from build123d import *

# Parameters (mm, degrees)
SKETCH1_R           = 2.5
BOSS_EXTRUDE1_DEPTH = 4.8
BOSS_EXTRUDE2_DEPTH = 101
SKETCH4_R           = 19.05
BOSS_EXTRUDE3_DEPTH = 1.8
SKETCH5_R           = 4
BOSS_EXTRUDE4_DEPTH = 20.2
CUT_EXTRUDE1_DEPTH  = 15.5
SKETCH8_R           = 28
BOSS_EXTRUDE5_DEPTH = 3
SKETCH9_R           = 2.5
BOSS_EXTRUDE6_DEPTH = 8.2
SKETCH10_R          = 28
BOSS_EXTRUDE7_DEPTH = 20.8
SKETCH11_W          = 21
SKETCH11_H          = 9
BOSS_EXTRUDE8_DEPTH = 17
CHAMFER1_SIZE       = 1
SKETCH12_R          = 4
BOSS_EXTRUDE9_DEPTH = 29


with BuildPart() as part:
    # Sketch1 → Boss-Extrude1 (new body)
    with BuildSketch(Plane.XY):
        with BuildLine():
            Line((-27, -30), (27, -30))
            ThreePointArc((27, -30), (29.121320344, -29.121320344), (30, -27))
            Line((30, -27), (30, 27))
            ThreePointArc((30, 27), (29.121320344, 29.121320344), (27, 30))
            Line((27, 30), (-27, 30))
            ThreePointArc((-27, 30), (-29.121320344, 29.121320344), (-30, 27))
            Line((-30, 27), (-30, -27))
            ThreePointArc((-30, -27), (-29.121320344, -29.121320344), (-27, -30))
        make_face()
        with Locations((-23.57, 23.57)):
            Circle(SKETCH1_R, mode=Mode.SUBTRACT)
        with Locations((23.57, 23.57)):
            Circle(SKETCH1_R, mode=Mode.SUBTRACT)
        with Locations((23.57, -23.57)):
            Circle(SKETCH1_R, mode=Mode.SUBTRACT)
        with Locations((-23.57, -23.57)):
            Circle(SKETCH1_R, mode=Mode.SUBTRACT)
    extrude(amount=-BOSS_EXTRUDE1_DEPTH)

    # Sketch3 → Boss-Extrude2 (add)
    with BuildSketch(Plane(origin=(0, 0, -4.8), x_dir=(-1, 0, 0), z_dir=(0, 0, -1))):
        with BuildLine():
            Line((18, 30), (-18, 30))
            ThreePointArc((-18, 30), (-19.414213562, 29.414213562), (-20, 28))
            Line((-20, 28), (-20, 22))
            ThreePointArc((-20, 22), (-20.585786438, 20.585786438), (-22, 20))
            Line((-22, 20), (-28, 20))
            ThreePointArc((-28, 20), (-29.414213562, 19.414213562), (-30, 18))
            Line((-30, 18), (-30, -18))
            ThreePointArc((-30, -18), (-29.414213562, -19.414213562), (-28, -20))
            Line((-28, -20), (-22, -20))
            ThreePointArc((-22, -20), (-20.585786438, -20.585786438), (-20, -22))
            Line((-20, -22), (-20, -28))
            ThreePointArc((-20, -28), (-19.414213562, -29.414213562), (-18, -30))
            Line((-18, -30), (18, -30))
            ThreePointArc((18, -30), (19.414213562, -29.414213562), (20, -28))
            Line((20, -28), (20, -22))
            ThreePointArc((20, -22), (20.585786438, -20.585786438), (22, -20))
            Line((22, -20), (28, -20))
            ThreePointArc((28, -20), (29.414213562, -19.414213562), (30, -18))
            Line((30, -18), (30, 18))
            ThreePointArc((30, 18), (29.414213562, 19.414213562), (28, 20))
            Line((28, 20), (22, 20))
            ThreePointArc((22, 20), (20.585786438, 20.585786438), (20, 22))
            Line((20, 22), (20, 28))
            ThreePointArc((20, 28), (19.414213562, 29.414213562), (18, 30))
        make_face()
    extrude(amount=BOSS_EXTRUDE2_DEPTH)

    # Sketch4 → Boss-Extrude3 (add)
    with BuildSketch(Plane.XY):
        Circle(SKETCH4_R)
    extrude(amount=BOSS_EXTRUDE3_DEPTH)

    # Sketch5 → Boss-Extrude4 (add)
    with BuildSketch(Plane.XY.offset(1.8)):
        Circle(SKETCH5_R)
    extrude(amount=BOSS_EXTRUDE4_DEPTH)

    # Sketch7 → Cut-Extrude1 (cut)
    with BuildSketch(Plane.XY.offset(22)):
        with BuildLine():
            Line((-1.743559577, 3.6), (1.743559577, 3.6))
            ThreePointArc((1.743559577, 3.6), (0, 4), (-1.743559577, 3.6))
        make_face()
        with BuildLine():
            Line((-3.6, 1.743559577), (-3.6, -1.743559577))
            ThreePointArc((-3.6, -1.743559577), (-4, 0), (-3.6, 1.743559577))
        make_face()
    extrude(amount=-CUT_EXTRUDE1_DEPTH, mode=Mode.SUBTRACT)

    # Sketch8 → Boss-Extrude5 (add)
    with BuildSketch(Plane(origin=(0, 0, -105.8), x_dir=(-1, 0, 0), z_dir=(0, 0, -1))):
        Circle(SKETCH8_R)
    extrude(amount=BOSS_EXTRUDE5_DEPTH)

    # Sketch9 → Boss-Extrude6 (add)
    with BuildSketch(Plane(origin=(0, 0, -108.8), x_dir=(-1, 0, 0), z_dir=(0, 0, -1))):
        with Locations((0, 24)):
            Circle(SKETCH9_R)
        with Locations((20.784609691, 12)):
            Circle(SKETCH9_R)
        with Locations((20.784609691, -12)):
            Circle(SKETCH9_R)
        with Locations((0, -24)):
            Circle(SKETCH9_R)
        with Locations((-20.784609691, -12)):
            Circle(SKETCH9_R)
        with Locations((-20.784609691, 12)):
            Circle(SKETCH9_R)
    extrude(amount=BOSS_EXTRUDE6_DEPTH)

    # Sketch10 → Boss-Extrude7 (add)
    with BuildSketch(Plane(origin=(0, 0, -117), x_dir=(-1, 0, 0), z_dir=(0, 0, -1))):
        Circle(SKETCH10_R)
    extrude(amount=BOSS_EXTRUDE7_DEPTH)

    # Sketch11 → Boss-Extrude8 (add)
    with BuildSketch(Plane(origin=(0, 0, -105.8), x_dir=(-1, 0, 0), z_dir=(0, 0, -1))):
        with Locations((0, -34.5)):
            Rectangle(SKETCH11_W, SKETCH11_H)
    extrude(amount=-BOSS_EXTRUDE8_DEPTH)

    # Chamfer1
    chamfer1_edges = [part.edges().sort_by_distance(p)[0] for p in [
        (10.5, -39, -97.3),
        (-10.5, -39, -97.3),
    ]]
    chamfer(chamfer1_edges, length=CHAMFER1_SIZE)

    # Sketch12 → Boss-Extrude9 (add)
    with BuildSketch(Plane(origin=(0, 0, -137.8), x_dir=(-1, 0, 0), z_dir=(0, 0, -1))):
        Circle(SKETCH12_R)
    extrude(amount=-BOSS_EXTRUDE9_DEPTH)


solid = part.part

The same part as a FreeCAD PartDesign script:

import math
import FreeCAD as App
import Part
import Sketcher


def edges_at(feature, points):
    """Names of the edges that pass closest to the given points."""
    edges = feature.Shape.Edges
    near = lambda p: min(range(len(edges)), key=lambda i: edges[i].distToShape(Part.Vertex(*p))[0])
    return sorted({f"Edge{near(p) + 1}" for p in points})

doc = App.newDocument("Part")
params = doc.addObject("Spreadsheet::Sheet", "Params")
for row, (alias, value) in enumerate([
    ("sketch1_diameter", "5 mm"),
    ("sketch1_radius", "3 mm"),
    ("sketch1_width", "54 mm"),
    ("pad1_length", "4.8 mm"),
    ("sketch2_radius", "2 mm"),
    ("sketch2_width", "36 mm"),
    ("sketch2_width2", "6 mm"),
    ("pad2_length", "101 mm"),
    ("sketch3_diameter", "38.1 mm"),
    ("pad3_length", "1.8 mm"),
    ("sketch4_diameter", "8 mm"),
    ("pad4_length", "20.2 mm"),
    ("sketch5_radius", "4 mm"),
    ("pocket1_length", "15.5 mm"),
    ("sketch6_diameter", "56 mm"),
    ("pad5_length", "3 mm"),
    ("sketch7_diameter", "5 mm"),
    ("pad6_length", "8.2 mm"),
    ("sketch8_diameter", "56 mm"),
    ("pad7_length", "20.8 mm"),
    ("sketch9_width", "21 mm"),
    ("sketch9_height", "9 mm"),
    ("pad8_length", "17 mm"),
    ("chamfer_size", "1 mm"),
    ("sketch10_diameter", "8 mm"),
    ("pad9_length", "29 mm"),
], start=1):
    params.set(f"A{row}", alias)
    params.set(f"B{row}", "=" + value)
    params.setAlias(f"B{row}", alias)

body = doc.addObject("PartDesign::Body", "Body")

# Sketch on XY plane
sketch1 = body.newObject("Sketcher::SketchObject", "Sketch")
sketch1.AttachmentSupport = (doc.getObject("XY_Plane"), [""])
sketch1.MapMode = "FlatFace"
sketch1.addGeometry([
    Part.LineSegment(App.Vector(-27, -30, 0), App.Vector(27, -30, 0)),  # 0
    Part.ArcOfCircle(Part.Circle(App.Vector(27, -27, 0), App.Vector(0, 0, 1), 3), math.radians(-90), math.radians(0)),  # 1
    Part.LineSegment(App.Vector(30, -27, 0), App.Vector(30, 27, 0)),  # 2
    Part.ArcOfCircle(Part.Circle(App.Vector(27, 27, 0), App.Vector(0, 0, 1), 3), math.radians(0), math.radians(90)),  # 3
    Part.LineSegment(App.Vector(27, 30, 0), App.Vector(-27, 30, 0)),  # 4
    Part.ArcOfCircle(Part.Circle(App.Vector(-27, 27, 0), App.Vector(0, 0, 1), 3), math.radians(90), math.radians(180)),  # 5
    Part.LineSegment(App.Vector(-30, 27, 0), App.Vector(-30, -27, 0)),  # 6
    Part.ArcOfCircle(Part.Circle(App.Vector(-27, -27, 0), App.Vector(0, 0, 1), 3), math.radians(180), math.radians(270)),  # 7
    Part.Circle(App.Vector(-23.6, -23.6, 0), App.Vector(0, 0, 1), 2.5),  # 8
    Part.Circle(App.Vector(23.6, -23.6, 0), App.Vector(0, 0, 1), 2.5),  # 9
    Part.Circle(App.Vector(-23.6, 23.6, 0), App.Vector(0, 0, 1), 2.5),  # 10
    Part.Circle(App.Vector(23.6, 23.6, 0), App.Vector(0, 0, 1), 2.5),  # 11
], False)
sketch1.addConstraint([
    Sketcher.Constraint("Tangent", 0, 2, 1, 1),
    Sketcher.Constraint("Tangent", 1, 2, 2, 1),
    Sketcher.Constraint("Tangent", 2, 2, 3, 1),
    Sketcher.Constraint("Tangent", 3, 2, 4, 1),
    Sketcher.Constraint("Tangent", 4, 2, 5, 1),
    Sketcher.Constraint("Tangent", 5, 2, 6, 1),
    Sketcher.Constraint("Tangent", 6, 2, 7, 1),
    Sketcher.Constraint("Tangent", 7, 2, 0, 1),
    Sketcher.Constraint("Horizontal", 0),
    Sketcher.Constraint("Vertical", 2),
    Sketcher.Constraint("Horizontal", 4),
    Sketcher.Constraint("Vertical", 6),
    Sketcher.Constraint("Equal", 1, 3),
    Sketcher.Constraint("Equal", 3, 5),
    Sketcher.Constraint("Equal", 5, 7),
    Sketcher.Constraint("Equal", 8, 9),
    Sketcher.Constraint("Equal", 9, 10),
    Sketcher.Constraint("Equal", 10, 11),
    Sketcher.Constraint("Symmetric", 1, 3, 5, 3, -1, 1),
    Sketcher.Constraint("Symmetric", 9, 3, 10, 3, -1, 1),
    Sketcher.Constraint("Symmetric", 8, 3, 11, 3, -1, 1),
    Sketcher.Constraint("Symmetric", 8, 3, 9, 3, -2),
    Sketcher.Constraint("Equal", 4, 2),
    Sketcher.Constraint("Diameter", 8, 5.0),
    Sketcher.Constraint("Radius", 1, 3.0),
    Sketcher.Constraint("DistanceX", 0, 1, 0, 2, 54.0),
    Sketcher.Constraint("DistanceX", 8, 3, -1, 1, 23.57),
    Sketcher.Constraint("DistanceY", 8, 3, -1, 1, 23.57),
])
sketch1.setExpression("Constraints[23]", "Params.sketch1_diameter")
sketch1.setExpression("Constraints[24]", "Params.sketch1_radius")
sketch1.setExpression("Constraints[25]", "Params.sketch1_width")
pad1 = body.newObject("PartDesign::Pad", "Pad")
pad1.Profile = sketch1
pad1.setExpression("Length", "Params.pad1_length")
pad1.Reversed = True

# Sketch on XY plane
sketch2 = body.newObject("Sketcher::SketchObject", "Sketch001")
sketch2.AttachmentSupport = (doc.getObject("XY_Plane"), [""])
sketch2.MapMode = "FlatFace"
sketch2.AttachmentOffset = App.Placement(App.Vector(0, 0, -4.8), App.Rotation())
sketch2.addGeometry([
    Part.LineSegment(App.Vector(-18, 30, 0), App.Vector(18, 30, 0)),  # 0
    Part.ArcOfCircle(Part.Circle(App.Vector(18, 28, 0), App.Vector(0, 0, 1), 2), math.radians(0), math.radians(90)),  # 1
    Part.LineSegment(App.Vector(20, 28, 0), App.Vector(20, 22, 0)),  # 2
    Part.ArcOfCircle(Part.Circle(App.Vector(22, 22, 0), App.Vector(0, 0, 1), 2), math.radians(-180), math.radians(-90)),  # 3
    Part.LineSegment(App.Vector(22, 20, 0), App.Vector(28, 20, 0)),  # 4
    Part.ArcOfCircle(Part.Circle(App.Vector(28, 18, 0), App.Vector(0, 0, 1), 2), math.radians(0), math.radians(90)),  # 5
    Part.LineSegment(App.Vector(30, 18, 0), App.Vector(30, -18, 0)),  # 6
    Part.ArcOfCircle(Part.Circle(App.Vector(28, -18, 0), App.Vector(0, 0, 1), 2), math.radians(-90), math.radians(0)),  # 7
    Part.LineSegment(App.Vector(28, -20, 0), App.Vector(22, -20, 0)),  # 8
    Part.ArcOfCircle(Part.Circle(App.Vector(22, -22, 0), App.Vector(0, 0, 1), 2), math.radians(90), math.radians(180)),  # 9
    Part.LineSegment(App.Vector(20, -22, 0), App.Vector(20, -28, 0)),  # 10
    Part.ArcOfCircle(Part.Circle(App.Vector(18, -28, 0), App.Vector(0, 0, 1), 2), math.radians(-90), math.radians(0)),  # 11
    Part.LineSegment(App.Vector(18, -30, 0), App.Vector(-18, -30, 0)),  # 12
    Part.ArcOfCircle(Part.Circle(App.Vector(-18, -28, 0), App.Vector(0, 0, 1), 2), math.radians(-180), math.radians(-90)),  # 13
    Part.LineSegment(App.Vector(-20, -28, 0), App.Vector(-20, -22, 0)),  # 14
    Part.ArcOfCircle(Part.Circle(App.Vector(-22, -22, 0), App.Vector(0, 0, 1), 2), math.radians(0), math.radians(90)),  # 15
    Part.LineSegment(App.Vector(-22, -20, 0), App.Vector(-28, -20, 0)),  # 16
    Part.ArcOfCircle(Part.Circle(App.Vector(-28, -18, 0), App.Vector(0, 0, 1), 2), math.radians(-180), math.radians(-90)),  # 17
    Part.LineSegment(App.Vector(-30, -18, 0), App.Vector(-30, 18, 0)),  # 18
    Part.ArcOfCircle(Part.Circle(App.Vector(-28, 18, 0), App.Vector(0, 0, 1), 2), math.radians(90), math.radians(180)),  # 19
    Part.LineSegment(App.Vector(-28, 20, 0), App.Vector(-22, 20, 0)),  # 20
    Part.ArcOfCircle(Part.Circle(App.Vector(-22, 22, 0), App.Vector(0, 0, 1), 2), math.radians(-90), math.radians(0)),  # 21
    Part.LineSegment(App.Vector(-20, 22, 0), App.Vector(-20, 28, 0)),  # 22
    Part.ArcOfCircle(Part.Circle(App.Vector(-18, 28, 0), App.Vector(0, 0, 1), 2), math.radians(90), math.radians(180)),  # 23
], False)
sketch2.addConstraint([
    Sketcher.Constraint("Tangent", 0, 2, 1, 2),
    Sketcher.Constraint("Tangent", 1, 1, 2, 1),
    Sketcher.Constraint("Tangent", 2, 2, 3, 1),
    Sketcher.Constraint("Tangent", 3, 2, 4, 1),
    Sketcher.Constraint("Tangent", 4, 2, 5, 2),
    Sketcher.Constraint("Tangent", 5, 1, 6, 1),
    Sketcher.Constraint("Tangent", 6, 2, 7, 2),
    Sketcher.Constraint("Tangent", 7, 1, 8, 1),
    Sketcher.Constraint("Tangent", 8, 2, 9, 1),
    Sketcher.Constraint("Tangent", 9, 2, 10, 1),
    Sketcher.Constraint("Tangent", 10, 2, 11, 2),
    Sketcher.Constraint("Tangent", 11, 1, 12, 1),
    Sketcher.Constraint("Tangent", 12, 2, 13, 2),
    Sketcher.Constraint("Tangent", 13, 1, 14, 1),
    Sketcher.Constraint("Tangent", 14, 2, 15, 1),
    Sketcher.Constraint("Tangent", 15, 2, 16, 1),
    Sketcher.Constraint("Tangent", 16, 2, 17, 2),
    Sketcher.Constraint("Tangent", 17, 1, 18, 1),
    Sketcher.Constraint("Tangent", 18, 2, 19, 2),
    Sketcher.Constraint("Tangent", 19, 1, 20, 1),
    Sketcher.Constraint("Tangent", 20, 2, 21, 1),
    Sketcher.Constraint("Tangent", 21, 2, 22, 1),
    Sketcher.Constraint("Tangent", 22, 2, 23, 2),
    Sketcher.Constraint("Tangent", 23, 1, 0, 1),
    Sketcher.Constraint("Horizontal", 0),
    Sketcher.Constraint("Vertical", 2),
    Sketcher.Constraint("Horizontal", 4),
    Sketcher.Constraint("Vertical", 6),
    Sketcher.Constraint("Horizontal", 8),
    Sketcher.Constraint("Vertical", 10),
    Sketcher.Constraint("Horizontal", 12),
    Sketcher.Constraint("Vertical", 14),
    Sketcher.Constraint("Horizontal", 16),
    Sketcher.Constraint("Vertical", 18),
    Sketcher.Constraint("Horizontal", 20),
    Sketcher.Constraint("Vertical", 22),
    Sketcher.Constraint("Equal", 1, 3),
    Sketcher.Constraint("Equal", 3, 5),
    Sketcher.Constraint("Equal", 5, 7),
    Sketcher.Constraint("Equal", 7, 9),
    Sketcher.Constraint("Equal", 9, 11),
    Sketcher.Constraint("Equal", 11, 13),
    Sketcher.Constraint("Equal", 13, 15),
    Sketcher.Constraint("Equal", 15, 17),
    Sketcher.Constraint("Equal", 17, 19),
    Sketcher.Constraint("Equal", 19, 21),
    Sketcher.Constraint("Equal", 21, 23),
    Sketcher.Constraint("Symmetric", 1, 3, 13, 3, -1, 1),
    Sketcher.Constraint("Symmetric", 5, 3, 17, 3, -1, 1),
    Sketcher.Constraint("Symmetric", 9, 3, 21, 3, -1, 1),
    Sketcher.Constraint("Symmetric", 9, 3, 15, 3, -2),
    Sketcher.Constraint("Equal", 20, 2),
    Sketcher.Constraint("Equal", 12, 6),
    Sketcher.Constraint("Radius", 1, 2.0),
    Sketcher.Constraint("DistanceX", 0, 1, 0, 2, 36.0),
    Sketcher.Constraint("DistanceX", 4, 1, 4, 2, 6.0),
])
sketch2.setExpression("Constraints[53]", "Params.sketch2_radius")
sketch2.setExpression("Constraints[54]", "Params.sketch2_width")
sketch2.setExpression("Constraints[55]", "Params.sketch2_width2")
pad2 = body.newObject("PartDesign::Pad", "Pad001")
pad2.Profile = sketch2
pad2.setExpression("Length", "Params.pad2_length")
pad2.Reversed = True

# Sketch on XY plane
sketch3 = body.newObject("Sketcher::SketchObject", "Sketch002")
sketch3.AttachmentSupport = (doc.getObject("XY_Plane"), [""])
sketch3.MapMode = "FlatFace"
sketch3.addGeometry(Part.Circle(App.Vector(0, 0, 0), App.Vector(0, 0, 1), 19), False)
sketch3.addConstraint([
    Sketcher.Constraint("Coincident", 0, 3, -1, 1),
    Sketcher.Constraint("Diameter", 0, 38.1),
])
sketch3.setExpression("Constraints[1]", "Params.sketch3_diameter")
pad3 = body.newObject("PartDesign::Pad", "Pad002")
pad3.Profile = sketch3
pad3.setExpression("Length", "Params.pad3_length")

# Sketch on XY plane
sketch4 = body.newObject("Sketcher::SketchObject", "Sketch003")
sketch4.AttachmentSupport = (doc.getObject("XY_Plane"), [""])
sketch4.MapMode = "FlatFace"
sketch4.AttachmentOffset = App.Placement(App.Vector(0, 0, 1.8), App.Rotation())
sketch4.addGeometry(Part.Circle(App.Vector(0, 0, 0), App.Vector(0, 0, 1), 4), False)
sketch4.addConstraint([
    Sketcher.Constraint("Coincident", 0, 3, -1, 1),
    Sketcher.Constraint("Diameter", 0, 8.0),
])
sketch4.setExpression("Constraints[1]", "Params.sketch4_diameter")
pad4 = body.newObject("PartDesign::Pad", "Pad003")
pad4.Profile = sketch4
pad4.setExpression("Length", "Params.pad4_length")

# Sketch on XY plane
sketch5 = body.newObject("Sketcher::SketchObject", "Sketch004")
sketch5.AttachmentSupport = (doc.getObject("XY_Plane"), [""])
sketch5.MapMode = "FlatFace"
sketch5.AttachmentOffset = App.Placement(App.Vector(0, 0, 22), App.Rotation())
sketch5.addGeometry([
    Part.LineSegment(App.Vector(-1.7, 3.6, 0), App.Vector(1.7, 3.6, 0)),
    Part.ArcOfCircle(Part.Circle(App.Vector(0, 0, 0), App.Vector(0, 0, 1), 4), math.radians(64), math.radians(116)),
    Part.LineSegment(App.Vector(-3.6, -1.7, 0), App.Vector(-3.6, 1.7, 0)),
    Part.ArcOfCircle(Part.Circle(App.Vector(0, 0, 0), App.Vector(0, 0, 1), 4), math.radians(154), math.radians(206)),
], False)
sketch5.addConstraint([
    Sketcher.Constraint("Coincident", 0, 1, 1, 2),
    Sketcher.Constraint("Coincident", 1, 1, 0, 2),
    Sketcher.Constraint("Coincident", 2, 1, 3, 2),
    Sketcher.Constraint("Coincident", 3, 1, 2, 2),
    Sketcher.Constraint("Horizontal", 0),
    Sketcher.Constraint("Vertical", 2),
    Sketcher.Constraint("Coincident", 1, 3, -1, 1),
    Sketcher.Constraint("Coincident", 3, 3, -1, 1),
    Sketcher.Constraint("Equal", 1, 3),
    Sketcher.Constraint("Equal", 0, 2),
    Sketcher.Constraint("Radius", 1, 4.0),
    Sketcher.Constraint("DistanceY", -1, 1, 0, 1, 3.6),
])
sketch5.setExpression("Constraints[10]", "Params.sketch5_radius")
pocket1 = body.newObject("PartDesign::Pocket", "Pocket")
pocket1.Profile = sketch5
pocket1.setExpression("Length", "Params.pocket1_length")

# Sketch on XY plane
sketch6 = body.newObject("Sketcher::SketchObject", "Sketch005")
sketch6.AttachmentSupport = (doc.getObject("XY_Plane"), [""])
sketch6.MapMode = "FlatFace"
sketch6.AttachmentOffset = App.Placement(App.Vector(0, 0, -105.8), App.Rotation())
sketch6.addGeometry(Part.Circle(App.Vector(0, 0, 0), App.Vector(0, 0, 1), 28), False)
sketch6.addConstraint([
    Sketcher.Constraint("Coincident", 0, 3, -1, 1),
    Sketcher.Constraint("Diameter", 0, 56.0),
])
sketch6.setExpression("Constraints[1]", "Params.sketch6_diameter")
pad5 = body.newObject("PartDesign::Pad", "Pad004")
pad5.Profile = sketch6
pad5.setExpression("Length", "Params.pad5_length")
pad5.Reversed = True

# Sketch on XY plane
sketch7 = body.newObject("Sketcher::SketchObject", "Sketch006")
sketch7.AttachmentSupport = (doc.getObject("XY_Plane"), [""])
sketch7.MapMode = "FlatFace"
sketch7.AttachmentOffset = App.Placement(App.Vector(0, 0, -108.8), App.Rotation())
sketch7.addGeometry([
    Part.Circle(App.Vector(0, 24, 0), App.Vector(0, 0, 1), 2.5),  # 0
    Part.Circle(App.Vector(-20.8, 12, 0), App.Vector(0, 0, 1), 2.5),  # 1
    Part.Circle(App.Vector(-20.8, -12, 0), App.Vector(0, 0, 1), 2.5),  # 2
    Part.Circle(App.Vector(0, -24, 0), App.Vector(0, 0, 1), 2.5),  # 3
    Part.Circle(App.Vector(20.8, -12, 0), App.Vector(0, 0, 1), 2.5),  # 4
    Part.Circle(App.Vector(20.8, 12, 0), App.Vector(0, 0, 1), 2.5),  # 5
], False)
sketch7.addConstraint([
    Sketcher.Constraint("Equal", 0, 1),
    Sketcher.Constraint("Equal", 1, 2),
    Sketcher.Constraint("Equal", 2, 3),
    Sketcher.Constraint("Equal", 3, 4),
    Sketcher.Constraint("Equal", 4, 5),
    Sketcher.Constraint("Symmetric", 0, 3, 3, 3, -1, 1),
    Sketcher.Constraint("Symmetric", 1, 3, 4, 3, -1, 1),
    Sketcher.Constraint("Symmetric", 2, 3, 5, 3, -1, 1),
    Sketcher.Constraint("Symmetric", 2, 3, 4, 3, -2),
    Sketcher.Constraint("PointOnObject", 0, 3, -2),
    Sketcher.Constraint("Diameter", 0, 5.0),
    Sketcher.Constraint("DistanceY", -1, 1, 0, 3, 24.0),
    Sketcher.Constraint("DistanceY", -1, 1, 1, 3, 12.0),
    Sketcher.Constraint("DistanceX", 1, 3, -1, 1, 20.78461),
])
sketch7.setExpression("Constraints[10]", "Params.sketch7_diameter")
pad6 = body.newObject("PartDesign::Pad", "Pad005")
pad6.Profile = sketch7
pad6.setExpression("Length", "Params.pad6_length")
pad6.Reversed = True

# Sketch on XY plane
sketch8 = body.newObject("Sketcher::SketchObject", "Sketch007")
sketch8.AttachmentSupport = (doc.getObject("XY_Plane"), [""])
sketch8.MapMode = "FlatFace"
sketch8.AttachmentOffset = App.Placement(App.Vector(0, 0, -117), App.Rotation())
sketch8.addGeometry(Part.Circle(App.Vector(0, 0, 0), App.Vector(0, 0, 1), 28), False)
sketch8.addConstraint([
    Sketcher.Constraint("Coincident", 0, 3, -1, 1),
    Sketcher.Constraint("Diameter", 0, 56.0),
])
sketch8.setExpression("Constraints[1]", "Params.sketch8_diameter")
pad7 = body.newObject("PartDesign::Pad", "Pad006")
pad7.Profile = sketch8
pad7.setExpression("Length", "Params.pad7_length")
pad7.Reversed = True

# Sketch on XY plane
sketch9 = body.newObject("Sketcher::SketchObject", "Sketch008")
sketch9.AttachmentSupport = (doc.getObject("XY_Plane"), [""])
sketch9.MapMode = "FlatFace"
sketch9.AttachmentOffset = App.Placement(App.Vector(0, 0, -105.8), App.Rotation())
sketch9.addGeometry([
    Part.LineSegment(App.Vector(10, -30, 0), App.Vector(10, -39, 0)),
    Part.LineSegment(App.Vector(10, -39, 0), App.Vector(-10, -39, 0)),
    Part.LineSegment(App.Vector(-10, -39, 0), App.Vector(-10, -30, 0)),
    Part.LineSegment(App.Vector(-10, -30, 0), App.Vector(10, -30, 0)),
], False)
sketch9.addConstraint([
    Sketcher.Constraint("Coincident", 0, 2, 1, 1),
    Sketcher.Constraint("Coincident", 1, 2, 2, 1),
    Sketcher.Constraint("Coincident", 2, 2, 3, 1),
    Sketcher.Constraint("Coincident", 3, 2, 0, 1),
    Sketcher.Constraint("Vertical", 0),
    Sketcher.Constraint("Horizontal", 1),
    Sketcher.Constraint("Vertical", 2),
    Sketcher.Constraint("Horizontal", 3),
    Sketcher.Constraint("DistanceX", 1, 2, 1, 1, 21.0),
    Sketcher.Constraint("DistanceY", 0, 2, 0, 1, 9.0),
    Sketcher.Constraint("DistanceY", 0, 2, -1, 1, 39.0),
    Sketcher.Constraint("DistanceX", -1, 1, 0, 2, 10.5),
])
sketch9.setExpression("Constraints[8]", "Params.sketch9_width")
sketch9.setExpression("Constraints[9]", "Params.sketch9_height")
pad8 = body.newObject("PartDesign::Pad", "Pad007")
pad8.Profile = sketch9
pad8.setExpression("Length", "Params.pad8_length")
doc.recompute()

chamfer = body.newObject("PartDesign::Chamfer", "Chamfer")
chamfer.Base = (pad8, edges_at(pad8, [(10.5, -39, -97.3), (-10.5, -39, -97.3)]))
chamfer.setExpression("Size", "Params.chamfer_size")

# Sketch on XY plane
sketch10 = body.newObject("Sketcher::SketchObject", "Sketch009")
sketch10.AttachmentSupport = (doc.getObject("XY_Plane"), [""])
sketch10.MapMode = "FlatFace"
sketch10.AttachmentOffset = App.Placement(App.Vector(0, 0, -137.8), App.Rotation())
sketch10.addGeometry(Part.Circle(App.Vector(0, 0, 0), App.Vector(0, 0, 1), 4), False)
sketch10.addConstraint([
    Sketcher.Constraint("Coincident", 0, 3, -1, 1),
    Sketcher.Constraint("Diameter", 0, 8.0),
])
sketch10.setExpression("Constraints[1]", "Params.sketch10_diameter")
pad9 = body.newObject("PartDesign::Pad", "Pad008")
pad9.Profile = sketch10
pad9.setExpression("Length", "Params.pad9_length")

doc.recompute()
